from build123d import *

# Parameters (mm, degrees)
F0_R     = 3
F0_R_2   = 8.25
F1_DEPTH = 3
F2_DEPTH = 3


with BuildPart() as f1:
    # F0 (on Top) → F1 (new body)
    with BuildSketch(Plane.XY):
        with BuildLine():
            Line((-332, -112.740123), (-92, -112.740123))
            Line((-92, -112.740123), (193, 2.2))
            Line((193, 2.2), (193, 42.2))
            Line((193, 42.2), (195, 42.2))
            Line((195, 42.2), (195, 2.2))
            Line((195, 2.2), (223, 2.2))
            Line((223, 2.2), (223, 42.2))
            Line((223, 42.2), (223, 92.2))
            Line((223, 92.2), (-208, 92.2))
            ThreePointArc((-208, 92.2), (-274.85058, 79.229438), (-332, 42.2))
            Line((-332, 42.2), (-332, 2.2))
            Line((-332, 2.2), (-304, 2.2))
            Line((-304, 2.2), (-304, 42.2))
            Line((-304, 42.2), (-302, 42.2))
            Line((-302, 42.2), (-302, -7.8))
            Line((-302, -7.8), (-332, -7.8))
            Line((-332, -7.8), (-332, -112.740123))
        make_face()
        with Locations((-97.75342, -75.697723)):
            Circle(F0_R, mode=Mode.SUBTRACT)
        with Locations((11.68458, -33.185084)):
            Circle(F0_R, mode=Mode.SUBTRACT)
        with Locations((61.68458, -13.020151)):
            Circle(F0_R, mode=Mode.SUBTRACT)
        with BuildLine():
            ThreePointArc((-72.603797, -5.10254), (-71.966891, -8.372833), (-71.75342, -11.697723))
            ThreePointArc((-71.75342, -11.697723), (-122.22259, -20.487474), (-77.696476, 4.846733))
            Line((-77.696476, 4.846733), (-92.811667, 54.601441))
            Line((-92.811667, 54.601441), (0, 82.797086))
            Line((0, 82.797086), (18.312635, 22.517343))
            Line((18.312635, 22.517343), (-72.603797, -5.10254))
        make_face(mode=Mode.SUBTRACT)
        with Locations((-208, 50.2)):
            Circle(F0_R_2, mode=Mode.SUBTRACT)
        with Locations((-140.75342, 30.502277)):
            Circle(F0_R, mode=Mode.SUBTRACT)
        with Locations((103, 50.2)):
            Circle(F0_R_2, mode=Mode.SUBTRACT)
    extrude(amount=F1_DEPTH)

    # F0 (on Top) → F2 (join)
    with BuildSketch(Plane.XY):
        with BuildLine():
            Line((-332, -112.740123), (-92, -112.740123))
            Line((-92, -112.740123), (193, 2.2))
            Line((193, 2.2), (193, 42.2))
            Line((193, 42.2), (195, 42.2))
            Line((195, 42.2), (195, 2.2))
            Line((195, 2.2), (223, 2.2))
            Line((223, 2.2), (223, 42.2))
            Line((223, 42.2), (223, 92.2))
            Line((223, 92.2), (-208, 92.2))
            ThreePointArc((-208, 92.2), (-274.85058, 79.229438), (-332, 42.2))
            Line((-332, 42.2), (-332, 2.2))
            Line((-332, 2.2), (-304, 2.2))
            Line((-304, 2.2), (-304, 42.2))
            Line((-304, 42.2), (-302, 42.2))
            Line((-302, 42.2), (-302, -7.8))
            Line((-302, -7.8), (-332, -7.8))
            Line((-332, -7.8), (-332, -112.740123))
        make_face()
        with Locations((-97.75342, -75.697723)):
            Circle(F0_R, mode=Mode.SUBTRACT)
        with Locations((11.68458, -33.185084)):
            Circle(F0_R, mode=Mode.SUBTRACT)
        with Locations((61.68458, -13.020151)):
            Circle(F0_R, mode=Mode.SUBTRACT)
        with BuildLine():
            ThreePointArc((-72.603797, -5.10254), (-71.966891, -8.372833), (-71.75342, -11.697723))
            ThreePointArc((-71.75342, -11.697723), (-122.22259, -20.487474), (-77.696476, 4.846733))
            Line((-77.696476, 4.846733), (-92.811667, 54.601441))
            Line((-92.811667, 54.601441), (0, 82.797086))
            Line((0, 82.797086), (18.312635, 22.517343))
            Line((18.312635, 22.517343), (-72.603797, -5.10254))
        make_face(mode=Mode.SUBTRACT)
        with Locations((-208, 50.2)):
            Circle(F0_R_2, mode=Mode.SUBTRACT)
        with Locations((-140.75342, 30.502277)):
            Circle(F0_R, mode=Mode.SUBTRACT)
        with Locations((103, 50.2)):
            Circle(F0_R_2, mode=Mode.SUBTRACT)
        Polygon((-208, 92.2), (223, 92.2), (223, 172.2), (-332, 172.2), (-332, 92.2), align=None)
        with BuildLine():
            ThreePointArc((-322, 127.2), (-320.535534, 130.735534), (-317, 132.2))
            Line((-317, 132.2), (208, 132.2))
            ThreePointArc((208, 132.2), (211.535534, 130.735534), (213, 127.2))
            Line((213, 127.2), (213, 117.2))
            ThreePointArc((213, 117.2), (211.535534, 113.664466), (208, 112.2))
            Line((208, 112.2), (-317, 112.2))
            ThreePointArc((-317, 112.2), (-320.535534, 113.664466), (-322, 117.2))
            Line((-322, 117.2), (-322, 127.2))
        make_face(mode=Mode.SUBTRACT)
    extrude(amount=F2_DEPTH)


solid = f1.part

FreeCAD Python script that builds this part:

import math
import FreeCAD as App
import Part
import Sketcher
from FreeCAD import Vector
Q = App.Units.Quantity

doc = App.newDocument("Part")
params = doc.addObject("Spreadsheet::Sheet", "Params")
for row, (alias, value) in enumerate([
    ("sketch1_diameter", "6 mm"),
    ("sketch1_radius", "26 mm"),
    ("sketch1_diameter2", "16.5 mm"),
    ("sketch1_width", "240 mm"),
    ("sketch1_width2", "2 mm"),
    ("pad1_length", "3 mm"),
    ("sketch2_diameter", "6 mm"),
    ("sketch2_radius", "26 mm"),
    ("sketch2_radius2", "5 mm"),
    ("sketch2_diameter2", "16.5 mm"),
    ("sketch2_width", "240 mm"),
    ("pad2_length", "3 mm"),
], start=1):
    params.set(f"A{row}", alias)
    params.set(f"B{row}", "=" + value)
    params.setAlias(f"B{row}", alias)

body = doc.addObject("PartDesign::Body", "Body")

# Sketch on XY plane
sketch1 = body.newObject("Sketcher::SketchObject", "Sketch")
sketch1.AttachmentSupport = (doc.getObject("XY_Plane"), [""])
sketch1.MapMode = "FlatFace"
sketch1.addGeometry([
    Part.LineSegment(Vector(-332, -112.7, 0), Vector(-92, -112.7, 0)),  # 0
    Part.LineSegment(Vector(-92, -112.7, 0), Vector(193, 2.2, 0)),  # 1
    Part.LineSegment(Vector(193, 2.2, 0), Vector(193, 42.2, 0)),  # 2
    Part.LineSegment(Vector(193, 42.2, 0), Vector(195, 42.2, 0)),  # 3
    Part.LineSegment(Vector(195, 42.2, 0), Vector(195, 2.2, 0)),  # 4
    Part.LineSegment(Vector(195, 2.2, 0), Vector(223, 2.2, 0)),  # 5
    Part.LineSegment(Vector(223, 2.2, 0), Vector(223, 92.2, 0)),  # 6
    Part.LineSegment(Vector(223, 92.2, 0), Vector(-208, 92.2, 0)),  # 7
    Part.ArcOfCircle(Part.Circle(Vector(-208, -86.6, 0), Vector(0, 0, 1), 178.8), math.radians(90), math.radians(134)),  # 8
    Part.LineSegment(Vector(-332, 42.2, 0), Vector(-332, 2.2, 0)),  # 9
    Part.LineSegment(Vector(-332, 2.2, 0), Vector(-304, 2.2, 0)),  # 10
    Part.LineSegment(Vector(-304, 2.2, 0), Vector(-304, 42.2, 0)),  # 11
    Part.LineSegment(Vector(-304, 42.2, 0), Vector(-302, 42.2, 0)),  # 12
    Part.LineSegment(Vector(-302, 42.2, 0), Vector(-302, -7.8, 0)),  # 13
    Part.LineSegment(Vector(-302, -7.8, 0), Vector(-332, -7.8, 0)),  # 14
    Part.LineSegment(Vector(-332, -7.8, 0), Vector(-332, -112.7, 0)),  # 15
    Part.Circle(Vector(-97.8, -75.7, 0), Vector(0, 0, 1), 3),  # 16
    Part.Circle(Vector(11.7, -33.2, 0), Vector(0, 0, 1), 3),  # 17
    Part.Circle(Vector(61.7, -13, 0), Vector(0, 0, 1), 3),  # 18
    Part.Circle(Vector(-140.8, 30.5, 0), Vector(0, 0, 1), 3),  # 19
    Part.LineSegment(Vector(18.3, 22.5, 0), Vector(-72.6, -5.1, 0)),  # 20
    Part.ArcOfCircle(Part.Circle(Vector(-97.8, -11.7, 0), Vector(0, 0, 1), 26), math.radians(0), math.radians(14.69)),  # 21
    Part.ArcOfCircle(Part.Circle(Vector(-97.8, -11.7, 0), Vector(0, 0, 1), 26), math.radians(40), math.radians(360)),  # 22
    Part.LineSegment(Vector(-77.7, 4.8, 0), Vector(-92.8, 54.6, 0)),  # 23
    Part.LineSegment(Vector(-92.8, 54.6, 0), Vector(0, 82.8, 0)),  # 24
    Part.LineSegment(Vector(0, 82.8, 0), Vector(18.3, 22.5, 0)),  # 25
    Part.Circle(Vector(-208, 50.2, 0), Vector(0, 0, 1), 8.2),  # 26
    Part.Circle(Vector(103, 50.2, 0), Vector(0, 0, 1), 8.2),  # 27
], False)
sketch1.addConstraint([
    Sketcher.Constraint("Coincident", 0, 2, 1, 1),
    Sketcher.Constraint("Coincident", 1, 2, 2, 1),
    Sketcher.Constraint("Coincident", 2, 2, 3, 1),
    Sketcher.Constraint("Coincident", 3, 2, 4, 1),
    Sketcher.Constraint("Coincident", 4, 2, 5, 1),
    Sketcher.Constraint("Coincident", 5, 2, 6, 1),
    Sketcher.Constraint("Coincident", 6, 2, 7, 1),
    Sketcher.Constraint("Tangent", 7, 2, 8, 1),
    Sketcher.Constraint("Coincident", 8, 2, 9, 1),
    Sketcher.Constraint("Coincident", 9, 2, 10, 1),
    Sketcher.Constraint("Coincident", 10, 2, 11, 1),
    Sketcher.Constraint("Coincident", 11, 2, 12, 1),
    Sketcher.Constraint("Coincident", 12, 2, 13, 1),
    Sketcher.Constraint("Coincident", 13, 2, 14, 1),
    Sketcher.Constraint("Coincident", 14, 2, 15, 1),
    Sketcher.Constraint("Coincident", 15, 2, 0, 1),
    Sketcher.Constraint("Coincident", 20, 2, 21, 2),
    Sketcher.Constraint("Tangent", 21, 1, 22, 2),
    Sketcher.Constraint("Coincident", 22, 1, 23, 1),
    Sketcher.Constraint("Coincident", 23, 2, 24, 1),
    Sketcher.Constraint("Coincident", 24, 2, 25, 1),
    Sketcher.Constraint("Coincident", 25, 2, 20, 1),
    Sketcher.Constraint("Horizontal", 0),
    Sketcher.Constraint("Vertical", 2),
    Sketcher.Constraint("Horizontal", 3),
    Sketcher.Constraint("Vertical", 4),
    Sketcher.Constraint("Horizontal", 5),
    Sketcher.Constraint("Vertical", 6),
    Sketcher.Constraint("Horizontal", 7),
    Sketcher.Constraint("Vertical", 9),
    Sketcher.Constraint("Horizontal", 10),
    Sketcher.Constraint("Vertical", 11),
    Sketcher.Constraint("Horizontal", 12),
    Sketcher.Constraint("Vertical", 13),
    Sketcher.Constraint("Horizontal", 14),
    Sketcher.Constraint("Vertical", 15),
    Sketcher.Constraint("Equal", 16, 17),
    Sketcher.Constraint("Equal", 17, 18),
    Sketcher.Constraint("Equal", 18, 19),
    Sketcher.Constraint("Equal", 26, 27),
    Sketcher.Constraint("PointOnObject", 24, 2, -2),
    Sketcher.Constraint("Perpendicular", 20, 23),
    Sketcher.Constraint("Perpendicular", 23, 24),
    Sketcher.Constraint("Perpendicular", 24, 25),
    Sketcher.Constraint("Horizontal", 26, 3, 27, 3),
    Sketcher.Constraint("Horizontal", 1, 2, 4, 2),
    Sketcher.Constraint("Horizontal", 3, 2, 8, 2),
    Sketcher.Constraint("Horizontal", 5, 2, 9, 2),
    Sketcher.Constraint("Horizontal", 8, 2, 11, 2),
    Sketcher.Constraint("Horizontal", 22, 3, 21, 1),
    Sketcher.Constraint("Vertical", 16, 3, 22, 3),
    Sketcher.Constraint("Vertical", 26, 3, 7, 2),
    Sketcher.Constraint("Vertical", 9, 2, 14, 2),
    Sketcher.Constraint("Equal", 5, 10),
    Sketcher.Constraint("Equal", 3, 12),
    Sketcher.Constraint("Diameter", 16, Q("6 mm")),
    Sketcher.Constraint("Radius", 22, Q("26 mm")),
    Sketcher.Constraint("Diameter", 26, Q("16.5 mm")),
    Sketcher.Constraint("DistanceX", 0, 1, 0, 2, Q("240 mm")),
    Sketcher.Constraint("DistanceX", 3, 1, 3, 2, Q("2 mm")),
    Sketcher.Constraint("DistanceX", 5, 1, 5, 2, Q("28 mm")),
    Sketcher.Constraint("DistanceX", 7, 2, 7, 1, Q("431 mm")),
    Sketcher.Constraint("DistanceY", 2, 1, 2, 2, Q("40 mm")),
    Sketcher.Constraint("DistanceY", 6, 1, 6, 2, Q("90 mm")),
    Sketcher.Constraint("DistanceY", 13, 2, 13, 1, Q("50 mm")),
    Sketcher.Constraint("Distance", 23, Q("52 mm")),
    Sketcher.Constraint("Distance", 24, Q("97 mm")),
    Sketcher.Constraint("Distance", 25, Q("63 mm")),
    Sketcher.Constraint("DistanceX", 26, 3, -1, 1, Q("208 mm")),
    Sketcher.Constraint("DistanceX", -1, 1, 27, 3, Q("103 mm")),
    Sketcher.Constraint("DistanceX", 0, 2, -1, 1, Q("92 mm")),
    Sketcher.Constraint("DistanceX", 17, 3, 18, 3, Q("50 mm")),
    Sketcher.Constraint("DistanceX", 19, 3, 16, 3, Q("43 mm")),
    Sketcher.Constraint("DistanceY", 16, 3, 22, 3, Q("64.000001 mm")),
    Sketcher.Constraint("DistanceY", 1, 2, 27, 3, Q("48 mm")),
    Sketcher.Constraint("DistanceY", -1, 1, 26, 3, Q("50.2 mm")),
    Sketcher.Constraint("DistanceY", 16, 3, 19, 3, Q("106.2 mm")),
    Sketcher.Constraint("Radius", 21, Q("26.000038 mm")),
    Sketcher.Constraint("DistanceX", 16, 3, 17, 3, Q("109.438 mm")),
    Sketcher.Constraint("DistanceY", 0, 2, 16, 3, Q("37.0424 mm")),
    Sketcher.Constraint("DistanceY", 15, 2, 15, 1, Q("104.940123 mm")),
    Sketcher.Constraint("DistanceX", 16, 3, -1, 1, Q("97.75342 mm")),
    Sketcher.Constraint("DistanceY", 18, 3, -1, 1, Q("13.020151 mm")),
    Sketcher.Constraint("DistanceY", 20, 2, -1, 1, Q("5.10254 mm")),
    Sketcher.Constraint("DistanceY", 16, 3, 17, 3, Q("42.512639 mm")),
])
sketch1.setExpression("Constraints[55]", "Params.sketch1_diameter")
sketch1.setExpression("Constraints[56]", "Params.sketch1_radius")
sketch1.setExpression("Constraints[57]", "Params.sketch1_diameter2")
sketch1.setExpression("Constraints[58]", "Params.sketch1_width")
sketch1.setExpression("Constraints[59]", "Params.sketch1_width2")
pad1 = body.newObject("PartDesign::Pad", "Pad")
pad1.Profile = sketch1
pad1.setExpression("Length", "Params.pad1_length")

# Sketch on XY plane
sketch2 = body.newObject("Sketcher::SketchObject", "Sketch001")
sketch2.AttachmentSupport = (doc.getObject("XY_Plane"), [""])
sketch2.MapMode = "FlatFace"
sketch2.addGeometry([
    Part.LineSegment(Vector(-332, -112.7, 0), Vector(-92, -112.7, 0)),  # 0
    Part.LineSegment(Vector(-92, -112.7, 0), Vector(193, 2.2, 0)),  # 1
    Part.LineSegment(Vector(193, 2.2, 0), Vector(193, 42.2, 0)),  # 2
    Part.LineSegment(Vector(193, 42.2, 0), Vector(195, 42.2, 0)),  # 3
    Part.LineSegment(Vector(195, 42.2, 0), Vector(195, 2.2, 0)),  # 4
    Part.LineSegment(Vector(195, 2.2, 0), Vector(223, 2.2, 0)),  # 5
    Part.LineSegment(Vector(223, 2.2, 0), Vector(223, 172.2, 0)),  # 6
    Part.LineSegment(Vector(223, 172.2, 0), Vector(-332, 172.2, 0)),  # 7
    Part.LineSegment(Vector(-332, 172.2, 0), Vector(-332, 92.2, 0)),  # 8
    Part.LineSegment(Vector(-332, 92.2, 0), Vector(-208, 92.2, 0)),  # 9
    Part.ArcOfCircle(Part.Circle(Vector(-208, -86.6, 0), Vector(0, 0, 1), 178.8), math.radians(90), math.radians(134)),  # 10
    Part.LineSegment(Vector(-332, 42.2, 0), Vector(-332, 2.2, 0)),  # 11
    Part.LineSegment(Vector(-332, 2.2, 0), Vector(-304, 2.2, 0)),  # 12
    Part.LineSegment(Vector(-304, 2.2, 0), Vector(-304, 42.2, 0)),  # 13
    Part.LineSegment(Vector(-304, 42.2, 0), Vector(-302, 42.2, 0)),  # 14
    Part.LineSegment(Vector(-302, 42.2, 0), Vector(-302, -7.8, 0)),  # 15
    Part.LineSegment(Vector(-302, -7.8, 0), Vector(-332, -7.8, 0)),  # 16
    Part.LineSegment(Vector(-332, -7.8, 0), Vector(-332, -112.7, 0)),  # 17
    Part.Circle(Vector(-97.8, -75.7, 0), Vector(0, 0, 1), 3),  # 18
    Part.Circle(Vector(11.7, -33.2, 0), Vector(0, 0, 1), 3),  # 19
    Part.Circle(Vector(61.7, -13, 0), Vector(0, 0, 1), 3),  # 20
    Part.LineSegment(Vector(18.3, 22.5, 0), Vector(-72.6, -5.1, 0)),  # 21
    Part.ArcOfCircle(Part.Circle(Vector(-97.8, -11.7, 0), Vector(0, 0, 1), 26), math.radians(0), math.radians(14.69)),  # 22
    Part.ArcOfCircle(Part.Circle(Vector(-97.8, -11.7, 0), Vector(0, 0, 1), 26), math.radians(40), math.radians(360)),  # 23
    Part.LineSegment(Vector(-77.7, 4.8, 0), Vector(-92.8, 54.6, 0)),  # 24
    Part.LineSegment(Vector(-92.8, 54.6, 0), Vector(0, 82.8, 0)),  # 25
    Part.LineSegment(Vector(0, 82.8, 0), Vector(18.3, 22.5, 0)),  # 26
    Part.Circle(Vector(-208, 50.2, 0), Vector(0, 0, 1), 8.2),  # 27
    Part.Circle(Vector(-140.8, 30.5, 0), Vector(0, 0, 1), 3),  # 28
    Part.Circle(Vector(103, 50.2, 0), Vector(0, 0, 1), 8.2),  # 29
    Part.LineSegment(Vector(-322, 117.2, 0), Vector(-322, 127.2, 0)),  # 30
    Part.ArcOfCircle(Part.Circle(Vector(-317, 127.2, 0), Vector(0, 0, 1), 5), math.radians(90), math.radians(180)),  # 31
    Part.LineSegment(Vector(-317, 132.2, 0), Vector(208, 132.2, 0)),  # 32
    Part.ArcOfCircle(Part.Circle(Vector(208, 127.2, 0), Vector(0, 0, 1), 5), math.radians(0), math.radians(90)),  # 33
    Part.LineSegment(Vector(213, 127.2, 0), Vector(213, 117.2, 0)),  # 34
    Part.ArcOfCircle(Part.Circle(Vector(208, 117.2, 0), Vector(0, 0, 1), 5), math.radians(-90), math.radians(0)),  # 35
    Part.LineSegment(Vector(208, 112.2, 0), Vector(-317, 112.2, 0)),  # 36
    Part.ArcOfCircle(Part.Circle(Vector(-317, 117.2, 0), Vector(0, 0, 1), 5), math.radians(180), math.radians(270)),  # 37
], False)
sketch2.addConstraint([
    Sketcher.Constraint("Coincident", 0, 2, 1, 1),
    Sketcher.Constraint("Coincident", 1, 2, 2, 1),
    Sketcher.Constraint("Coincident", 2, 2, 3, 1),
    Sketcher.Constraint("Coincident", 3, 2, 4, 1),
    Sketcher.Constraint("Coincident", 4, 2, 5, 1),
    Sketcher.Constraint("Coincident", 5, 2, 6, 1),
    Sketcher.Constraint("Coincident", 6, 2, 7, 1),
    Sketcher.Constraint("Coincident", 7, 2, 8, 1),
    Sketcher.Constraint("Coincident", 8, 2, 9, 1),
    Sketcher.Constraint("Tangent", 9, 2, 10, 1),
    Sketcher.Constraint("Coincident", 10, 2, 11, 1),
    Sketcher.Constraint("Coincident", 11, 2, 12, 1),
    Sketcher.Constraint("Coincident", 12, 2, 13, 1),
    Sketcher.Constraint("Coincident", 13, 2, 14, 1),
    Sketcher.Constraint("Coincident", 14, 2, 15, 1),
    Sketcher.Constraint("Coincident", 15, 2, 16, 1),
    Sketcher.Constraint("Coincident", 16, 2, 17, 1),
    Sketcher.Constraint("Coincident", 17, 2, 0, 1),
    Sketcher.Constraint("Coincident", 21, 2, 22, 2),
    Sketcher.Constraint("Tangent", 22, 1, 23, 2),
    Sketcher.Constraint("Coincident", 23, 1, 24, 1),
    Sketcher.Constraint("Coincident", 24, 2, 25, 1),
    Sketcher.Constraint("Coincident", 25, 2, 26, 1),
    Sketcher.Constraint("Coincident", 26, 2, 21, 1),
    Sketcher.Constraint("Tangent", 30, 2, 31, 2),
    Sketcher.Constraint("Tangent", 31, 1, 32, 1),
    Sketcher.Constraint("Tangent", 32, 2, 33, 2),
    Sketcher.Constraint("Tangent", 33, 1, 34, 1),
    Sketcher.Constraint("Tangent", 34, 2, 35, 2),
    Sketcher.Constraint("Tangent", 35, 1, 36, 1),
    Sketcher.Constraint("Tangent", 36, 2, 37, 2),
    Sketcher.Constraint("Tangent", 37, 1, 30, 1),
    Sketcher.Constraint("Horizontal", 0),
    Sketcher.Constraint("Vertical", 2),
    Sketcher.Constraint("Horizontal", 3),
    Sketcher.Constraint("Vertical", 4),
    Sketcher.Constraint("Horizontal", 5),
    Sketcher.Constraint("Vertical", 6),
    Sketcher.Constraint("Horizontal", 7),
    Sketcher.Constraint("Vertical", 8),
    Sketcher.Constraint("Horizontal", 9),
    Sketcher.Constraint("Vertical", 11),
    Sketcher.Constraint("Horizontal", 12),
    Sketcher.Constraint("Vertical", 13),
    Sketcher.Constraint("Horizontal", 14),
    Sketcher.Constraint("Vertical", 15),
    Sketcher.Constraint("Horizontal", 16),
    Sketcher.Constraint("Vertical", 17),
    Sketcher.Constraint("Vertical", 30),
    Sketcher.Constraint("Horizontal", 32),
    Sketcher.Constraint("Vertical", 34),
    Sketcher.Constraint("Horizontal", 36),
    Sketcher.Constraint("Equal", 18, 19),
    Sketcher.Constraint("Equal", 19, 20),
    Sketcher.Constraint("Equal", 20, 28),
    Sketcher.Constraint("Equal", 27, 29),
    Sketcher.Constraint("Equal", 31, 33),
    Sketcher.Constraint("Equal", 33, 35),
    Sketcher.Constraint("Equal", 35, 37),
    Sketcher.Constraint("PointOnObject", 25, 2, -2),
    Sketcher.Constraint("Perpendicular", 21, 24),
    Sketcher.Constraint("Perpendicular", 24, 25),
    Sketcher.Constraint("Perpendicular", 25, 26),
    Sketcher.Constraint("Horizontal", 27, 3, 29, 3),
    Sketcher.Constraint("Horizontal", 1, 2, 4, 2),
    Sketcher.Constraint("Horizontal", 3, 2, 10, 2),
    Sketcher.Constraint("Horizontal", 5, 2, 11, 2),
    Sketcher.Constraint("Horizontal", 10, 2, 13, 2),
    Sketcher.Constraint("Horizontal", 23, 3, 22, 1),
    Sketcher.Constraint("Vertical", 18, 3, 23, 3),
    Sketcher.Constraint("Vertical", 27, 3, 9, 2),
    Sketcher.Constraint("Vertical", 8, 2, 10, 2),
    Sketcher.Constraint("Vertical", 11, 2, 16, 2),
    Sketcher.Constraint("Equal", 5, 12),
    Sketcher.Constraint("Equal", 3, 14),
    Sketcher.Constraint("Diameter", 18, Q("6 mm")),
    Sketcher.Constraint("Radius", 23, Q("26 mm")),
    Sketcher.Constraint("Radius", 31, Q("5 mm")),
    Sketcher.Constraint("Diameter", 27, Q("16.5 mm")),
    Sketcher.Constraint("DistanceX", 0, 1, 0, 2, Q("240 mm")),
    Sketcher.Constraint("DistanceX", 3, 1, 3, 2, Q("2 mm")),
    Sketcher.Constraint("DistanceX", 5, 1, 5, 2, Q("28 mm")),
    Sketcher.Constraint("DistanceX", 7, 2, 7, 1, Q("555 mm")),
    Sketcher.Constraint("DistanceX", 9, 1, 9, 2, Q("124 mm")),
    Sketcher.Constraint("DistanceX", 32, 1, 32, 2, Q("525 mm")),
    Sketcher.Constraint("DistanceY", 2, 1, 2, 2, Q("40 mm")),
    Sketcher.Constraint("DistanceY", 6, 1, 6, 2, Q("170 mm")),
    Sketcher.Constraint("DistanceY", 8, 2, 8, 1, Q("80 mm")),
    Sketcher.Constraint("DistanceY", 15, 2, 15, 1, Q("50 mm")),
    Sketcher.Constraint("DistanceY", 30, 1, 30, 2, Q("10 mm")),
    Sketcher.Constraint("Distance", 24, Q("52 mm")),
    Sketcher.Constraint("Distance", 25, Q("97 mm")),
    Sketcher.Constraint("Distance", 26, Q("63 mm")),
    Sketcher.Constraint("DistanceX", 27, 3, -1, 1, Q("208 mm")),
    Sketcher.Constraint("DistanceX", -1, 1, 29, 3, Q("103 mm")),
    Sketcher.Constraint("DistanceX", 31, 3, -1, 1, Q("317 mm")),
    Sketcher.Constraint("DistanceX", 19, 3, 20, 3, Q("50 mm")),
    Sketcher.Constraint("DistanceY", 18, 3, 23, 3, Q("64.000001 mm")),
    Sketcher.Constraint("DistanceX", 28, 3, 23, 3, Q("43 mm")),
    Sketcher.Constraint("DistanceY", 27, 3, 31, 3, Q("77 mm")),
    Sketcher.Constraint("DistanceY", 1, 2, 29, 3, Q("48 mm")),
    Sketcher.Constraint("DistanceY", -1, 1, 27, 3, Q("50.2 mm")),
    Sketcher.Constraint("DistanceY", 23, 3, 28, 3, Q("42.199999 mm")),
    Sketcher.Constraint("Radius", 22, Q("26.000038 mm")),
    Sketcher.Constraint("DistanceX", 18, 3, 19, 3, Q("109.438 mm")),
    Sketcher.Constraint("DistanceY", 0, 2, 18, 3, Q("37.0424 mm")),
    Sketcher.Constraint("DistanceY", 17, 2, 17, 1, Q("104.940123 mm")),
    Sketcher.Constraint("DistanceX", 18, 3, -1, 1, Q("97.75342 mm")),
    Sketcher.Constraint("DistanceY", 20, 3, -1, 1, Q("13.020151 mm")),
    Sketcher.Constraint("DistanceY", 21, 2, -1, 1, Q("5.10254 mm")),
    Sketcher.Constraint("DistanceY", 18, 3, 19, 3, Q("42.512639 mm")),
])
sketch2.setExpression("Constraints[75]", "Params.sketch2_diameter")
sketch2.setExpression("Constraints[76]", "Params.sketch2_radius")
sketch2.setExpression("Constraints[77]", "Params.sketch2_radius2")
sketch2.setExpression("Constraints[78]", "Params.sketch2_diameter2")
sketch2.setExpression("Constraints[79]", "Params.sketch2_width")
pad2 = body.newObject("PartDesign::Pad", "Pad001")
pad2.Profile = sketch2
pad2.setExpression("Length", "Params.pad2_length")

doc.recompute()
